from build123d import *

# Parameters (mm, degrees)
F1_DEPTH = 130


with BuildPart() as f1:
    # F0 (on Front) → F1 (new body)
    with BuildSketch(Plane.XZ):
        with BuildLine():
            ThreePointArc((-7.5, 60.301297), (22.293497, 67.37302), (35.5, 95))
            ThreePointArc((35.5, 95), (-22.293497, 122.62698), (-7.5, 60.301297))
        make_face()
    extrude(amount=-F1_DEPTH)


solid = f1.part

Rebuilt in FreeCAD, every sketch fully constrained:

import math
import FreeCAD as App
import Part
import Sketcher

doc = App.newDocument("Part")
body = doc.addObject("PartDesign::Body", "Body")

sketch1 = body.newObject("Sketcher::SketchObject", "Sketch")
sketch1.AttachmentSupport = (doc.getObject("XZ_Plane"), [""])
sketch1.MapMode = "FlatFace"
sketch1.addGeometry([
    Part.ArcOfCircle(Part.Circle(App.Vector(0.000001, 94.999999, 0), App.Vector(0, 0, 1), 35.499999), math.radians(-102.196649), math.radians(0.000002)),
    Part.ArcOfCircle(Part.Circle(App.Vector(0, 95, 0), App.Vector(0, 0, 1), 35.5), math.radians(-0.000001), math.radians(257.803353)),
], False)
sketch1.addConstraint([
    Sketcher.Constraint("Tangent", 0, 1, 1, 2),
    Sketcher.Constraint("Coincident", 1, 1, 0, 2),
    Sketcher.Constraint("PointOnObject", 0, 3, -2),
    Sketcher.Constraint("Horizontal", 0, 3, 1, 1),
    Sketcher.Constraint("Radius", 0, 35.499999),
    Sketcher.Constraint("DistanceY", -1, 1, 0, 3, 94.999999),
    Sketcher.Constraint("DistanceX", 0, 1, 1, 1, 43.0),
])
pad1 = body.newObject("PartDesign::Pad", "Pad")
pad1.Profile = sketch1
pad1.Length = 130
pad1.Reversed = True

doc.recompute()
